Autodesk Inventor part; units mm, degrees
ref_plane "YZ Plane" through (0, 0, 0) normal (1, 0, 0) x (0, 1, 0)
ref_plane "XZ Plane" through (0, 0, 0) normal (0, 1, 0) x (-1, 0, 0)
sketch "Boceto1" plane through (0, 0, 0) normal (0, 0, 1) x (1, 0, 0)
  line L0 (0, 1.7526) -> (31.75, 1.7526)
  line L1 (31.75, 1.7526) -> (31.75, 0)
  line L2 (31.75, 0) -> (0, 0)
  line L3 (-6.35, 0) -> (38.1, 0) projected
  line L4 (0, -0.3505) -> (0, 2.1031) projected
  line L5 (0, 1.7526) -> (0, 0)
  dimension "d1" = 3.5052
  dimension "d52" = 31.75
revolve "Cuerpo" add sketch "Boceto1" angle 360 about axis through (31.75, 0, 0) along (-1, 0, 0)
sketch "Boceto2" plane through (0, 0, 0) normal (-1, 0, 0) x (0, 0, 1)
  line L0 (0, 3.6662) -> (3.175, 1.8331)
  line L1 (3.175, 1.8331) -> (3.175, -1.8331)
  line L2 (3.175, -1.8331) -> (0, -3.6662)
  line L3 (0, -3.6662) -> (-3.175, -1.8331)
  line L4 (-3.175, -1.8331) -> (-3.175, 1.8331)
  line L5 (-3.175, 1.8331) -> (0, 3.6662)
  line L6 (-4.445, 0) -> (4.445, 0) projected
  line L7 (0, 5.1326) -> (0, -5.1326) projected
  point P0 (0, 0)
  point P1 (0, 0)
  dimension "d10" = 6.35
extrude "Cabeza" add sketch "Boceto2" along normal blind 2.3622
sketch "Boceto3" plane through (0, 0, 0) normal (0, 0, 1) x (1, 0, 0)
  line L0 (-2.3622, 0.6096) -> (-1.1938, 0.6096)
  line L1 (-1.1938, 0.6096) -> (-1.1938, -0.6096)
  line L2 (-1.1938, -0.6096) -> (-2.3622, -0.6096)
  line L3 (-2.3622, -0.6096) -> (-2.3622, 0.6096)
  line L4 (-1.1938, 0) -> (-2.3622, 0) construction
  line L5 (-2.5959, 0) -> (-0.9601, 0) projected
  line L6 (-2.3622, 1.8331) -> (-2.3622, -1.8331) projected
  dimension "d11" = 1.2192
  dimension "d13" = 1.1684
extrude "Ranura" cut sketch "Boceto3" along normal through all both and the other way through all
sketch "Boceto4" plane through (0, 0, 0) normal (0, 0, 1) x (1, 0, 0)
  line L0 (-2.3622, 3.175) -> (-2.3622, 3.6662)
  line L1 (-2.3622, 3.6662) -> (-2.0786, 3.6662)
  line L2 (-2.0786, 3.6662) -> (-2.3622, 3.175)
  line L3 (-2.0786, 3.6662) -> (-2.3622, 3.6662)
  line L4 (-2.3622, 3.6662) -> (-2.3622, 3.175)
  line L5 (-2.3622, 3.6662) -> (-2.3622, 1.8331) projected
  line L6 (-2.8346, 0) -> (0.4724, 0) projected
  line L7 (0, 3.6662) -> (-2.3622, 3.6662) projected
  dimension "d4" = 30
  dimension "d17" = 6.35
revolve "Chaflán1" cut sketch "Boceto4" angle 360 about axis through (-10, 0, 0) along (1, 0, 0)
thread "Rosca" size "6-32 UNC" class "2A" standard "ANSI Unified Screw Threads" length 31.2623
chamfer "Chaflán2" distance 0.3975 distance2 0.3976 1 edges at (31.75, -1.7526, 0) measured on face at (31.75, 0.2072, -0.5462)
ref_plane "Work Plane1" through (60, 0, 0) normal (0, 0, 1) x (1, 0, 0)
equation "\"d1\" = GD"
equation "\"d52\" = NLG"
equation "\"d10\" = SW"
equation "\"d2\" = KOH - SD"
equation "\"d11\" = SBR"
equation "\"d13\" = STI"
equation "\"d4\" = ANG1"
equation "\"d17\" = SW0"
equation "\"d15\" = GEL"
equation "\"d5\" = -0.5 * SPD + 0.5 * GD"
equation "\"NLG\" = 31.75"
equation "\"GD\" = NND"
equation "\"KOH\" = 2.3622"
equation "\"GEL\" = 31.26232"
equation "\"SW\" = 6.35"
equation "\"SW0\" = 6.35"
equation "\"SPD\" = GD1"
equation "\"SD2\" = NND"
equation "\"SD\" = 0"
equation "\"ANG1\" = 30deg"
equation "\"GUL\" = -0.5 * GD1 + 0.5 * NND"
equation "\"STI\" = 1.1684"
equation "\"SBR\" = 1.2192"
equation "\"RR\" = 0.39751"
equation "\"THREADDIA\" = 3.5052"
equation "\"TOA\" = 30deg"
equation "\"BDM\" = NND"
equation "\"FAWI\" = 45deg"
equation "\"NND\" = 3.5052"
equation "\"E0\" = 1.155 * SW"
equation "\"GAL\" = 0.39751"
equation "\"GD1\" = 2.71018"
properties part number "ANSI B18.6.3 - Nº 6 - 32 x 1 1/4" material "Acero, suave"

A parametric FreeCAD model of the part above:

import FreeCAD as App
import Part
import Sketcher
Q = App.Units.Quantity


def edges_at(feature, points):
    """Names of the edges that pass closest to the given points."""
    edges = feature.Shape.Edges
    near = lambda p: min(range(len(edges)), key=lambda i: edges[i].distToShape(Part.Vertex(*p))[0])
    return sorted({f"Edge{near(p) + 1}" for p in points})

doc = App.newDocument("Part")
body = doc.addObject("PartDesign::Body", "Body")

sketch1 = body.newObject("Sketcher::SketchObject", "Sketch")
sketch1.AttachmentSupport = (doc.getObject("XY_Plane"), [""])
sketch1.MapMode = "FlatFace"
sketch1.addGeometry([
    Part.LineSegment(App.Vector(31.8, 1.8, 0), App.Vector(0, 1.8, 0)),
    Part.LineSegment(App.Vector(0, 1.8, 0), App.Vector(0, 0, 0)),
    Part.LineSegment(App.Vector(0, 0, 0), App.Vector(31.8, 0, 0)),
    Part.LineSegment(App.Vector(31.8, 0, 0), App.Vector(31.8, 1.8, 0)),
], False)
sketch1.addConstraint([
    Sketcher.Constraint("Coincident", 0, 2, 1, 1),
    Sketcher.Constraint("Coincident", 1, 2, 2, 1),
    Sketcher.Constraint("Coincident", 2, 2, 3, 1),
    Sketcher.Constraint("Coincident", 3, 2, 0, 1),
    Sketcher.Constraint("Horizontal", 0),
    Sketcher.Constraint("Vertical", 1),
    Sketcher.Constraint("Horizontal", 2),
    Sketcher.Constraint("Vertical", 3),
    Sketcher.Constraint("Coincident", 1, 2, -1, 1),
    Sketcher.Constraint("DistanceX", 0, 2, 0, 1, Q("1.25 in")),
    Sketcher.Constraint("DistanceY", 1, 2, 1, 1, Q("0.069 in")),
])
revolution = body.newObject("PartDesign::Revolution", "Revolution")
revolution.Profile = sketch1
revolution.ReferenceAxis = (sketch1, ["H_Axis"])
revolution.Angle = 360

sketch2 = body.newObject("Sketcher::SketchObject", "Sketch001")
sketch2.AttachmentSupport = (doc.getObject("YZ_Plane"), [""])
sketch2.MapMode = "FlatFace"
sketch2.addGeometry([
    Part.LineSegment(App.Vector(1.8, -3.2, 0), App.Vector(-1.8, -3.2, 0)),
    Part.LineSegment(App.Vector(-1.8, -3.2, 0), App.Vector(-3.7, 0, 0)),
    Part.LineSegment(App.Vector(-3.7, 0, 0), App.Vector(-1.8, 3.2, 0)),
    Part.LineSegment(App.Vector(-1.8, 3.2, 0), App.Vector(1.8, 3.2, 0)),
    Part.LineSegment(App.Vector(1.8, 3.2, 0), App.Vector(3.7, 0, 0)),
    Part.LineSegment(App.Vector(3.7, 0, 0), App.Vector(1.8, -3.2, 0)),
], False)
sketch2.addConstraint([
    Sketcher.Constraint("Coincident", 0, 2, 1, 1),
    Sketcher.Constraint("Coincident", 1, 2, 2, 1),
    Sketcher.Constraint("Coincident", 2, 2, 3, 1),
    Sketcher.Constraint("Coincident", 3, 2, 4, 1),
    Sketcher.Constraint("Coincident", 4, 2, 5, 1),
    Sketcher.Constraint("Coincident", 5, 2, 0, 1),
    Sketcher.Constraint("Horizontal", 0),
    Sketcher.Constraint("Horizontal", 3),
    Sketcher.Constraint("Symmetric", 0, 2, 3, 2, -1, 1),
    Sketcher.Constraint("Symmetric", 1, 2, 4, 2, -1, 1),
    Sketcher.Constraint("PointOnObject", 1, 2, -1),
    Sketcher.Constraint("Parallel", 2, 5),
    Sketcher.Constraint("Vertical", 0, 2, 2, 2),
    Sketcher.Constraint("DistanceY", 0, 2, 2, 2, Q("0.25 in")),
    Sketcher.Constraint("Angle", 1, Q("120.0002 deg")),
    Sketcher.Constraint("DistanceX", 0, 2, 0, 1, 3.6662),
])
pad1 = body.newObject("PartDesign::Pad", "Pad")
pad1.Profile = sketch2
pad1.Length = Q("0.093 in")
pad1.Reversed = True

sketch3 = body.newObject("Sketcher::SketchObject", "Sketch002")
sketch3.AttachmentSupport = (doc.getObject("XY_Plane"), [""])
sketch3.MapMode = "FlatFace"
sketch3.addGeometry([
    Part.LineSegment(App.Vector(-1.2, 0.6, 0), App.Vector(-2.4, 0.6, 0)),
    Part.LineSegment(App.Vector(-2.4, 0.6, 0), App.Vector(-2.4, -0.6, 0)),
    Part.LineSegment(App.Vector(-2.4, -0.6, 0), App.Vector(-1.2, -0.6, 0)),
    Part.LineSegment(App.Vector(-1.2, -0.6, 0), App.Vector(-1.2, 0.6, 0)),
], False)
sketch3.addConstraint([
    Sketcher.Constraint("Coincident", 0, 2, 1, 1),
    Sketcher.Constraint("Coincident", 1, 2, 2, 1),
    Sketcher.Constraint("Coincident", 2, 2, 3, 1),
    Sketcher.Constraint("Coincident", 3, 2, 0, 1),
    Sketcher.Constraint("Horizontal", 0),
    Sketcher.Constraint("Vertical", 1),
    Sketcher.Constraint("Horizontal", 2),
    Sketcher.Constraint("Vertical", 3),
    Sketcher.Constraint("DistanceX", 0, 2, 0, 1, Q("0.046 in")),
    Sketcher.Constraint("DistanceY", 1, 2, 1, 1, Q("0.048 in")),
    Sketcher.Constraint("DistanceX", 0, 2, -1, 1, Q("0.093 in")),
    Sketcher.Constraint("DistanceY", -1, 1, 0, 2, Q("0.024 in")),
])
pocket1 = body.newObject("PartDesign::Pocket", "Pocket")
pocket1.Profile = sketch3
pocket1.Type = "ThroughAll"
pocket1.Midplane = True

sketch4 = body.newObject("Sketcher::SketchObject", "Sketch003")
sketch4.AttachmentSupport = (doc.getObject("XY_Plane"), [""])
sketch4.MapMode = "FlatFace"
sketch4.addGeometry([
    Part.LineSegment(App.Vector(-2.36, 3.67, 0), App.Vector(-2.36, 3.17, 0)),
    Part.LineSegment(App.Vector(-2.36, 3.17, 0), App.Vector(-2.08, 3.67, 0)),
    Part.LineSegment(App.Vector(-2.08, 3.67, 0), App.Vector(-2.36, 3.67, 0)),
], False)
sketch4.addConstraint([
    Sketcher.Constraint("Coincident", 0, 2, 1, 1),
    Sketcher.Constraint("Coincident", 1, 2, 2, 1),
    Sketcher.Constraint("Coincident", 2, 2, 0, 1),
    Sketcher.Constraint("Vertical", 0),
    Sketcher.Constraint("Horizontal", 2),
    Sketcher.Constraint("Angle", 1, Q("59.9995 deg")),
    Sketcher.Constraint("DistanceX", 0, 2, -1, 1, Q("0.093 in")),
    Sketcher.Constraint("DistanceY", -1, 1, 0, 2, Q("0.125 in")),
    Sketcher.Constraint("DistanceX", 2, 2, 2, 1, 0.2836),
])
groove = body.newObject("PartDesign::Groove", "Groove")
groove.Profile = sketch4
groove.ReferenceAxis = (sketch4, ["H_Axis"])
groove.Angle = 360
doc.recompute()

chamfer = body.newObject("PartDesign::Chamfer", "Chamfer")
chamfer.Base = (groove, edges_at(groove, [(31.75, -1.753, 0)]))
chamfer.ChamferType = "Two distances"
chamfer.Size = 0.3975
chamfer.Size2 = 0.3976

doc.recompute()
